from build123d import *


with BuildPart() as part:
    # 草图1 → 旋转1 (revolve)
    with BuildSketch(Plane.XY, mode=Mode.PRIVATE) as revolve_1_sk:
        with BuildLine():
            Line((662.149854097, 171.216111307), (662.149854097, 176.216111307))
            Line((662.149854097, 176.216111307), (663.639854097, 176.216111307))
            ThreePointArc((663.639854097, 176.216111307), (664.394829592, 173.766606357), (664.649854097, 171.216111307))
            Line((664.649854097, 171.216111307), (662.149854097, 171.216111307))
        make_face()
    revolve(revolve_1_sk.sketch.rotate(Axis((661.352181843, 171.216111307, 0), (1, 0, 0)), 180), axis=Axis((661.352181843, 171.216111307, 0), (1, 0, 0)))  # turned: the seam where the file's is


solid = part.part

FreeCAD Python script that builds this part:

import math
import FreeCAD as App
import Part
import Sketcher
Q = App.Units.Quantity

doc = App.newDocument("Part")
body = doc.addObject("PartDesign::Body", "Body")

# Sketch on XY plane
sketch1 = body.newObject("Sketcher::SketchObject", "Sketch")
sketch1.AttachmentSupport = (doc.getObject("XY_Plane"), [""])
sketch1.MapMode = "FlatFace"
sketch1.addGeometry([
    Part.LineSegment(App.Vector(662.1, 176.2, 0), App.Vector(662.1, 171.2, 0)),
    Part.LineSegment(App.Vector(662.1, 171.2, 0), App.Vector(664.6, 171.2, 0)),
    Part.ArcOfCircle(Part.Circle(App.Vector(651.8, 171.2, 0), App.Vector(0, 0, 1), 12.9), math.radians(0), math.radians(23)),
    Part.LineSegment(App.Vector(663.6, 176.2, 0), App.Vector(662.1, 176.2, 0)),
], False)
sketch1.addGeometry(Part.LineSegment(App.Vector(651.8, 171.2, 0), App.Vector(664.6, 171.2, 0)), True)  # axis
sketch1.addConstraint([
    Sketcher.Constraint("Coincident", 0, 2, 1, 1),
    Sketcher.Constraint("Coincident", 1, 2, 2, 1),
    Sketcher.Constraint("Coincident", 2, 2, 3, 1),
    Sketcher.Constraint("Coincident", 3, 2, 0, 1),
    Sketcher.Constraint("Vertical", 0),
    Sketcher.Constraint("Horizontal", 1),
    Sketcher.Constraint("Horizontal", 3),
    Sketcher.Constraint("Horizontal", 4),
    Sketcher.Constraint("Coincident", 4, 1, 2, 3),
    Sketcher.Constraint("Coincident", 4, 2, 1, 2),
    Sketcher.Constraint("DistanceY", 0, 2, 0, 1, Q("5 mm")),
    Sketcher.Constraint("DistanceX", 1, 1, 1, 2, Q("2.5 mm")),
    Sketcher.Constraint("DistanceX", 3, 2, 3, 1, Q("1.49 mm")),
    Sketcher.Constraint("DistanceY", -1, 1, 2, 3, Q("171.216111 mm")),
    Sketcher.Constraint("DistanceX", -1, 1, 2, 3, Q("651.768616 mm")),
])
revolution = body.newObject("PartDesign::Revolution", "Revolution")
revolution.Profile = sketch1
revolution.ReferenceAxis = (sketch1, ["Axis0"])
revolution.Angle = 360

doc.recompute()
